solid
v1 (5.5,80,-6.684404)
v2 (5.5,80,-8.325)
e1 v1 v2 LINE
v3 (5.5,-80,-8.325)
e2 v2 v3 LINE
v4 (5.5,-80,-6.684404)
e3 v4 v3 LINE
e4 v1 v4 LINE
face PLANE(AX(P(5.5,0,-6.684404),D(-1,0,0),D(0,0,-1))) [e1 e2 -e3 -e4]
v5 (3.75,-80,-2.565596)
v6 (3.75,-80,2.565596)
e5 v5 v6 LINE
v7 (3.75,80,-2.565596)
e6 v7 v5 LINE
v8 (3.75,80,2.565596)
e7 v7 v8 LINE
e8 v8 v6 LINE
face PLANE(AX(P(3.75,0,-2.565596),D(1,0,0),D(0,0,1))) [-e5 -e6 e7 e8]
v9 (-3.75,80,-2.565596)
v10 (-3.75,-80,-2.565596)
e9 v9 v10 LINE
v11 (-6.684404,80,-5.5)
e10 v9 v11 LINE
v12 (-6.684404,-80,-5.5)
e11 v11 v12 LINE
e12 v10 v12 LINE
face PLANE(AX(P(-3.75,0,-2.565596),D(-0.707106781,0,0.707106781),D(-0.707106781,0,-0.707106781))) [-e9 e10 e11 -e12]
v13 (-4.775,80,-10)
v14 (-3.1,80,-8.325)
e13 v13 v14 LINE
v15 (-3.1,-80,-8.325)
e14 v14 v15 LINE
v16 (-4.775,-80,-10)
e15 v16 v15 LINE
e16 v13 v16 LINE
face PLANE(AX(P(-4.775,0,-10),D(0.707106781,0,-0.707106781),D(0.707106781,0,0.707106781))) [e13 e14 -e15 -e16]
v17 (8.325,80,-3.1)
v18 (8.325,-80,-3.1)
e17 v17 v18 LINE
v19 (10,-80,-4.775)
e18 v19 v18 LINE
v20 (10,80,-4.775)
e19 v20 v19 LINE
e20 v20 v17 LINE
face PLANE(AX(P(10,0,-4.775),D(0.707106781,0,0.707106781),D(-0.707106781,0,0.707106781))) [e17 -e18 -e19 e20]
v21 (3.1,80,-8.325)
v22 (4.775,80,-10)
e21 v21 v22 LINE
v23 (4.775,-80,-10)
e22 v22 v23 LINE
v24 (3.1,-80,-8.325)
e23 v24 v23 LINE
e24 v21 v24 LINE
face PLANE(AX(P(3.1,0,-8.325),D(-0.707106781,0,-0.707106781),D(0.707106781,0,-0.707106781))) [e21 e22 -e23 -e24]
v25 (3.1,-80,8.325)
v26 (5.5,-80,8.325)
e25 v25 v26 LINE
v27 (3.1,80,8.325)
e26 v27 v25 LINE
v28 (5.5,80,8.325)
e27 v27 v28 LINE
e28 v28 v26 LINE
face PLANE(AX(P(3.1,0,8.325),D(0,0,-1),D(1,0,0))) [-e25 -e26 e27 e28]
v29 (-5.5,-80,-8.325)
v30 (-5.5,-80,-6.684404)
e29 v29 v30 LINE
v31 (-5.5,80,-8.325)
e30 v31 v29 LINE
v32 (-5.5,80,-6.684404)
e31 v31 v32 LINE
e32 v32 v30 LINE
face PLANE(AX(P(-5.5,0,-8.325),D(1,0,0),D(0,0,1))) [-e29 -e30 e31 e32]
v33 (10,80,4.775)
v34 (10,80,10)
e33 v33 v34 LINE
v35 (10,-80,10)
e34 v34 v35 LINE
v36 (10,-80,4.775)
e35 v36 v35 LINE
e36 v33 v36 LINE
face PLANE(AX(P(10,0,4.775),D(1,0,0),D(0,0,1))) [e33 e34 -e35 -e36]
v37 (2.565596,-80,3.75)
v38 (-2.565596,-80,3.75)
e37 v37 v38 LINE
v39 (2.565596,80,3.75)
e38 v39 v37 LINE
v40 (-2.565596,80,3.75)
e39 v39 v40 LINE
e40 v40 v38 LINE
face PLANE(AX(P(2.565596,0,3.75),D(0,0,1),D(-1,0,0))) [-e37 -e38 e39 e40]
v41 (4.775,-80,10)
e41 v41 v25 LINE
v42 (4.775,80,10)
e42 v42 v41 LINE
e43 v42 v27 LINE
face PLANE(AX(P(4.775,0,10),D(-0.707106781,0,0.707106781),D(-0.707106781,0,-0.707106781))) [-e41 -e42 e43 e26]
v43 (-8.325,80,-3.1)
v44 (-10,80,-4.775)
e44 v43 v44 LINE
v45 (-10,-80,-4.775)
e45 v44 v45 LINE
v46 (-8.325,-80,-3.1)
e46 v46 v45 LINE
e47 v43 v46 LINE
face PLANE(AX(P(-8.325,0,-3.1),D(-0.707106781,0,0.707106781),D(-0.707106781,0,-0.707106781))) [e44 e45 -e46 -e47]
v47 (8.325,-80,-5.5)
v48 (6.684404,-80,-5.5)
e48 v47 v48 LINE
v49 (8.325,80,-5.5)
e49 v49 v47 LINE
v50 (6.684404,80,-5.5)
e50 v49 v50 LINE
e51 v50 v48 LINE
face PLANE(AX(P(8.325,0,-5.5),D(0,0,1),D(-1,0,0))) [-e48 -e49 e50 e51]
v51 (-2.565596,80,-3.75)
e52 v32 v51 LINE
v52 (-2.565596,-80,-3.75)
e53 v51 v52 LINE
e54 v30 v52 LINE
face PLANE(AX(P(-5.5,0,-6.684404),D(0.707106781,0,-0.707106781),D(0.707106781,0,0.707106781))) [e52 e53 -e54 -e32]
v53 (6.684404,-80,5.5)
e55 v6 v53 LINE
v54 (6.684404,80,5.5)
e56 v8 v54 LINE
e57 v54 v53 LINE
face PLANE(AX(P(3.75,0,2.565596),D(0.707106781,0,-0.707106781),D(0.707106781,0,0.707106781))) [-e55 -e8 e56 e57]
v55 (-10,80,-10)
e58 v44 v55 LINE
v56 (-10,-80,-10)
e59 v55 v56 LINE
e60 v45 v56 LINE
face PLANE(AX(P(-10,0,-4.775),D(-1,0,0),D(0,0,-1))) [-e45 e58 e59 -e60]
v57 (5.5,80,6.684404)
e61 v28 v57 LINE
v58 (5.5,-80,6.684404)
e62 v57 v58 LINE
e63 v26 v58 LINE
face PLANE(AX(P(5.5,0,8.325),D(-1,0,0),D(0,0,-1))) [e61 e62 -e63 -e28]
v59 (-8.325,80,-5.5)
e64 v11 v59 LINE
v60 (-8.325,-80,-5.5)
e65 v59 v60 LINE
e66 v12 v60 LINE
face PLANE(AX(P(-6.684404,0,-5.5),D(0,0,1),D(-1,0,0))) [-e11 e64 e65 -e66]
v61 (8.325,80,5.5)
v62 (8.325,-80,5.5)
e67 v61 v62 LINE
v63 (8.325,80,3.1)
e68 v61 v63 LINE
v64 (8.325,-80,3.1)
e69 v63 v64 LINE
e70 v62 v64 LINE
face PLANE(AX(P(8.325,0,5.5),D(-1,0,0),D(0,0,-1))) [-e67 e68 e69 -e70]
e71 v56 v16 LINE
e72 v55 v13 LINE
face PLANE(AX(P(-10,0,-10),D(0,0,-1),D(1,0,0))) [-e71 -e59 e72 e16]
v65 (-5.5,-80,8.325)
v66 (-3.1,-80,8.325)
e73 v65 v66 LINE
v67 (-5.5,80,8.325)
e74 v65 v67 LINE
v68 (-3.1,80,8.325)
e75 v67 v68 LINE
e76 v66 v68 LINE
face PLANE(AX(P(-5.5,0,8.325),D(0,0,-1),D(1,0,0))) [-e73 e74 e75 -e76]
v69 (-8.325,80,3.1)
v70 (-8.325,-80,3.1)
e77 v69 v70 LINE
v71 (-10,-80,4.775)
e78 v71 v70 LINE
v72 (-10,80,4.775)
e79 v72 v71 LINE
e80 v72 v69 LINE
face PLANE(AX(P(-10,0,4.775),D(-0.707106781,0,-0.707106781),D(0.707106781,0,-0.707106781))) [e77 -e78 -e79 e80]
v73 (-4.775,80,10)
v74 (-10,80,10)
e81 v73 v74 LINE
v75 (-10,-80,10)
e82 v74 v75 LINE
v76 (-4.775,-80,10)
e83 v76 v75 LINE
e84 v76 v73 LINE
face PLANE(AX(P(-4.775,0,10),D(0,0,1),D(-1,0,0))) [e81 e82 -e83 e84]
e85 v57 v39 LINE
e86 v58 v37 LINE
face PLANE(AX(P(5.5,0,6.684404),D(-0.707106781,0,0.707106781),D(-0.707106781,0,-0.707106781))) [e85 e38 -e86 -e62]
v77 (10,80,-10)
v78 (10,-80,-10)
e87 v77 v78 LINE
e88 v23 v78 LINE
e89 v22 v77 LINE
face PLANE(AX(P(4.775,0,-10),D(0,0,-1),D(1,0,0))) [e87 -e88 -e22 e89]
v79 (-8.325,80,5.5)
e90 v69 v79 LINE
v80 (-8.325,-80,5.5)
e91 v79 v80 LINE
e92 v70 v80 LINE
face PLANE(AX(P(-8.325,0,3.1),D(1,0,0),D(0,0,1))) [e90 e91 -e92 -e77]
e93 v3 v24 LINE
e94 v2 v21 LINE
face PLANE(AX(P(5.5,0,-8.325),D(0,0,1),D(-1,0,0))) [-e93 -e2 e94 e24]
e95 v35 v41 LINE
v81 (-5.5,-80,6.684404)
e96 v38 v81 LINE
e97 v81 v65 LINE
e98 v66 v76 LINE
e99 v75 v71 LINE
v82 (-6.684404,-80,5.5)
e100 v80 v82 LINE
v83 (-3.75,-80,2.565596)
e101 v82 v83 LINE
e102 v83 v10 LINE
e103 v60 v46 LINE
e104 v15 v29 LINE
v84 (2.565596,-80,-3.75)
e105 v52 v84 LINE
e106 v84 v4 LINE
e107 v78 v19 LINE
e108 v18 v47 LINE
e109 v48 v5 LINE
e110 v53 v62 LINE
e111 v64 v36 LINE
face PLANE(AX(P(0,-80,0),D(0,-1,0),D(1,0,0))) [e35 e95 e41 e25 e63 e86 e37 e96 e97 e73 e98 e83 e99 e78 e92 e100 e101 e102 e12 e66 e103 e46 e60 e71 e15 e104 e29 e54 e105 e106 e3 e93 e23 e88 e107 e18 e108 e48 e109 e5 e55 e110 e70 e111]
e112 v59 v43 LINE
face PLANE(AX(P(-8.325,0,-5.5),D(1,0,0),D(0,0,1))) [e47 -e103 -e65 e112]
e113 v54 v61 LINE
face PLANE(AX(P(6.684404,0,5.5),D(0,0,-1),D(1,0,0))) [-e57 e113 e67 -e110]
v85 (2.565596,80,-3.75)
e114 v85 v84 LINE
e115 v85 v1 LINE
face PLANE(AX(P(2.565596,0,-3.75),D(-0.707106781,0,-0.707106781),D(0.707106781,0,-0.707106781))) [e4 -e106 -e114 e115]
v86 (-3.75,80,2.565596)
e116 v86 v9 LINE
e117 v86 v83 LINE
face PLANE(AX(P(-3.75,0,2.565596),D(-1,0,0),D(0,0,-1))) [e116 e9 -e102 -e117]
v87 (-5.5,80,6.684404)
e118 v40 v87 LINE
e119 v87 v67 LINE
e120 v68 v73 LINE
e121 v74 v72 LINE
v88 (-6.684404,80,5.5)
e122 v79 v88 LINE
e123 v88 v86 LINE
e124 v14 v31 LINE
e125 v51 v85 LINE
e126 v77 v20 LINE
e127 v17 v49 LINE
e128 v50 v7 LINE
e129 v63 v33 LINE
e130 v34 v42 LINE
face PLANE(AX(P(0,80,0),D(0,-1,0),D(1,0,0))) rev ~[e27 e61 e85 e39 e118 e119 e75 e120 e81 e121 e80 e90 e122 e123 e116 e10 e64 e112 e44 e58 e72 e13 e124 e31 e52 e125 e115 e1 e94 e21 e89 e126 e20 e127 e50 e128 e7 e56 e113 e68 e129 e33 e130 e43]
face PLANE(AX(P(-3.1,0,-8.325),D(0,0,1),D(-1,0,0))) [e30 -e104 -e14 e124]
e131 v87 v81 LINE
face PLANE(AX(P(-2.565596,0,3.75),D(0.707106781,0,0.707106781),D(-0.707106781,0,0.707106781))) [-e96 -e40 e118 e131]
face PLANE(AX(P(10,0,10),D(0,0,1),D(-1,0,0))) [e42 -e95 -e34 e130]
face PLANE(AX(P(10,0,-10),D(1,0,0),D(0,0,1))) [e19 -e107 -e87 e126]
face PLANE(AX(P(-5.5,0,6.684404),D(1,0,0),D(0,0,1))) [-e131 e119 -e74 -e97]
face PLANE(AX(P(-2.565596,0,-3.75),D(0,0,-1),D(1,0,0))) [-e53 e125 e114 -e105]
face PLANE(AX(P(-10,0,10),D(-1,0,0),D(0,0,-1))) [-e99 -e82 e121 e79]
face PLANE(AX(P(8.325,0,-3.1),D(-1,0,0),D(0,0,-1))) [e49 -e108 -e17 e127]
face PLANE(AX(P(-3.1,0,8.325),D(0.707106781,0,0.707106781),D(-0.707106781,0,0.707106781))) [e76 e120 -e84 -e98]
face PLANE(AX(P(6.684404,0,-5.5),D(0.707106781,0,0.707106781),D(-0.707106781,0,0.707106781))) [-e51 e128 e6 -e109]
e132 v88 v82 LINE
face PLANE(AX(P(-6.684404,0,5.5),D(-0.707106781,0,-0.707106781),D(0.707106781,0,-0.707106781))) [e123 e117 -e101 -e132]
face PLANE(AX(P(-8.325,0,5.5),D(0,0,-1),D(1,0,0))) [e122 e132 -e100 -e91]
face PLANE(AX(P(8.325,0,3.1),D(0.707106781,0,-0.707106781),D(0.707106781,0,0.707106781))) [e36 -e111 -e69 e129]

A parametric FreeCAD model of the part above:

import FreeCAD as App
import Part
import Sketcher
from FreeCAD import Vector
Q = App.Units.Quantity

doc = App.newDocument("Part")
body = doc.addObject("PartDesign::Body", "Body")

sketch1 = doc.addObject("Sketcher::SketchObject", "Sketch")
body.addObject(sketch1)
sketch1.AttachmentSupport = (doc.XZ_Plane, [""])
sketch1.MapMode = "FlatFace"
sketch1.addGeometry(Part.LineSegment(Vector(-4.8, 10, 0), Vector(-10, 10, 0)), False)
sketch1.addGeometry(Part.LineSegment(Vector(-10, 10, 0), Vector(-10, 4.8, 0)), False)
sketch1.addGeometry(Part.LineSegment(Vector(-10, 4.8, 0), Vector(-8.3, 3.1, 0)), False)
sketch1.addGeometry(Part.LineSegment(Vector(-8.3, 3.1, 0), Vector(-8.3, 5.5, 0)), False)
sketch1.addGeometry(Part.LineSegment(Vector(-8.3, 5.5, 0), Vector(-6.7, 5.5, 0)), False)
sketch1.addGeometry(Part.LineSegment(Vector(-6.7, 5.5, 0), Vector(-3.8, 2.6, 0)), False)
sketch1.addGeometry(Part.LineSegment(Vector(-3.8, 2.6, 0), Vector(-3.8, -2.6, 0)), False)
sketch1.addGeometry(Part.LineSegment(Vector(-3.8, -2.6, 0), Vector(-6.7, -5.5, 0)), False)
sketch1.addGeometry(Part.LineSegment(Vector(-6.7, -5.5, 0), Vector(-8.3, -5.5, 0)), False)
sketch1.addGeometry(Part.LineSegment(Vector(-8.3, -5.5, 0), Vector(-8.3, -3.1, 0)), False)
sketch1.addGeometry(Part.LineSegment(Vector(-8.3, -3.1, 0), Vector(-10, -4.8, 0)), False)
sketch1.addGeometry(Part.LineSegment(Vector(-10, -4.8, 0), Vector(-10, -10, 0)), False)
sketch1.addGeometry(Part.LineSegment(Vector(-10, -10, 0), Vector(-4.8, -10, 0)), False)
sketch1.addGeometry(Part.LineSegment(Vector(-4.8, -10, 0), Vector(-3.1, -8.3, 0)), False)
sketch1.addGeometry(Part.LineSegment(Vector(-3.1, -8.3, 0), Vector(-5.5, -8.3, 0)), False)
sketch1.addGeometry(Part.LineSegment(Vector(-5.5, -8.3, 0), Vector(-5.5, -6.7, 0)), False)
sketch1.addGeometry(Part.LineSegment(Vector(-5.5, -6.7, 0), Vector(-2.6, -3.8, 0)), False)
sketch1.addGeometry(Part.LineSegment(Vector(-2.6, -3.8, 0), Vector(2.6, -3.8, 0)), False)
sketch1.addGeometry(Part.LineSegment(Vector(2.6, -3.8, 0), Vector(5.5, -6.7, 0)), False)
sketch1.addGeometry(Part.LineSegment(Vector(5.5, -6.7, 0), Vector(5.5, -8.3, 0)), False)
sketch1.addGeometry(Part.LineSegment(Vector(5.5, -8.3, 0), Vector(3.1, -8.3, 0)), False)
sketch1.addGeometry(Part.LineSegment(Vector(3.1, -8.3, 0), Vector(4.8, -10, 0)), False)
sketch1.addGeometry(Part.LineSegment(Vector(4.8, -10, 0), Vector(10, -10, 0)), False)
sketch1.addGeometry(Part.LineSegment(Vector(10, -10, 0), Vector(10, -4.8, 0)), False)
sketch1.addGeometry(Part.LineSegment(Vector(10, -4.8, 0), Vector(8.3, -3.1, 0)), False)
sketch1.addGeometry(Part.LineSegment(Vector(8.3, -3.1, 0), Vector(8.3, -5.5, 0)), False)
sketch1.addGeometry(Part.LineSegment(Vector(8.3, -5.5, 0), Vector(6.7, -5.5, 0)), False)
sketch1.addGeometry(Part.LineSegment(Vector(6.7, -5.5, 0), Vector(3.8, -2.6, 0)), False)
sketch1.addGeometry(Part.LineSegment(Vector(3.8, -2.6, 0), Vector(3.8, 2.6, 0)), False)
sketch1.addGeometry(Part.LineSegment(Vector(3.8, 2.6, 0), Vector(6.7, 5.5, 0)), False)
sketch1.addGeometry(Part.LineSegment(Vector(6.7, 5.5, 0), Vector(8.3, 5.5, 0)), False)
sketch1.addGeometry(Part.LineSegment(Vector(8.3, 5.5, 0), Vector(8.3, 3.1, 0)), False)
sketch1.addGeometry(Part.LineSegment(Vector(8.3, 3.1, 0), Vector(10, 4.8, 0)), False)
sketch1.addGeometry(Part.LineSegment(Vector(10, 4.8, 0), Vector(10, 10, 0)), False)
sketch1.addGeometry(Part.LineSegment(Vector(10, 10, 0), Vector(4.8, 10, 0)), False)
sketch1.addGeometry(Part.LineSegment(Vector(4.8, 10, 0), Vector(3.1, 8.3, 0)), False)
sketch1.addGeometry(Part.LineSegment(Vector(3.1, 8.3, 0), Vector(5.5, 8.3, 0)), False)
sketch1.addGeometry(Part.LineSegment(Vector(5.5, 8.3, 0), Vector(5.5, 6.7, 0)), False)
sketch1.addGeometry(Part.LineSegment(Vector(5.5, 6.7, 0), Vector(2.6, 3.8, 0)), False)
sketch1.addGeometry(Part.LineSegment(Vector(2.6, 3.8, 0), Vector(-2.6, 3.8, 0)), False)
sketch1.addGeometry(Part.LineSegment(Vector(-2.6, 3.8, 0), Vector(-5.5, 6.7, 0)), False)
sketch1.addGeometry(Part.LineSegment(Vector(-5.5, 6.7, 0), Vector(-5.5, 8.3, 0)), False)
sketch1.addGeometry(Part.LineSegment(Vector(-5.5, 8.3, 0), Vector(-3.1, 8.3, 0)), False)
sketch1.addGeometry(Part.LineSegment(Vector(-3.1, 8.3, 0), Vector(-4.8, 10, 0)), False)
sketch1.addConstraint(Sketcher.Constraint("Coincident", 0, 2, 1, 1))
sketch1.addConstraint(Sketcher.Constraint("Coincident", 1, 2, 2, 1))
sketch1.addConstraint(Sketcher.Constraint("Coincident", 2, 2, 3, 1))
sketch1.addConstraint(Sketcher.Constraint("Coincident", 3, 2, 4, 1))
sketch1.addConstraint(Sketcher.Constraint("Coincident", 4, 2, 5, 1))
sketch1.addConstraint(Sketcher.Constraint("Coincident", 5, 2, 6, 1))
sketch1.addConstraint(Sketcher.Constraint("Coincident", 6, 2, 7, 1))
sketch1.addConstraint(Sketcher.Constraint("Coincident", 7, 2, 8, 1))
sketch1.addConstraint(Sketcher.Constraint("Coincident", 8, 2, 9, 1))
sketch1.addConstraint(Sketcher.Constraint("Coincident", 9, 2, 10, 1))
sketch1.addConstraint(Sketcher.Constraint("Coincident", 10, 2, 11, 1))
sketch1.addConstraint(Sketcher.Constraint("Coincident", 11, 2, 12, 1))
sketch1.addConstraint(Sketcher.Constraint("Coincident", 12, 2, 13, 1))
sketch1.addConstraint(Sketcher.Constraint("Coincident", 13, 2, 14, 1))
sketch1.addConstraint(Sketcher.Constraint("Coincident", 14, 2, 15, 1))
sketch1.addConstraint(Sketcher.Constraint("Coincident", 15, 2, 16, 1))
sketch1.addConstraint(Sketcher.Constraint("Coincident", 16, 2, 17, 1))
sketch1.addConstraint(Sketcher.Constraint("Coincident", 17, 2, 18, 1))
sketch1.addConstraint(Sketcher.Constraint("Coincident", 18, 2, 19, 1))
sketch1.addConstraint(Sketcher.Constraint("Coincident", 19, 2, 20, 1))
sketch1.addConstraint(Sketcher.Constraint("Coincident", 20, 2, 21, 1))
sketch1.addConstraint(Sketcher.Constraint("Coincident", 21, 2, 22, 1))
sketch1.addConstraint(Sketcher.Constraint("Coincident", 22, 2, 23, 1))
sketch1.addConstraint(Sketcher.Constraint("Coincident", 23, 2, 24, 1))
sketch1.addConstraint(Sketcher.Constraint("Coincident", 24, 2, 25, 1))
sketch1.addConstraint(Sketcher.Constraint("Coincident", 25, 2, 26, 1))
sketch1.addConstraint(Sketcher.Constraint("Coincident", 26, 2, 27, 1))
sketch1.addConstraint(Sketcher.Constraint("Coincident", 27, 2, 28, 1))
sketch1.addConstraint(Sketcher.Constraint("Coincident", 28, 2, 29, 1))
sketch1.addConstraint(Sketcher.Constraint("Coincident", 29, 2, 30, 1))
sketch1.addConstraint(Sketcher.Constraint("Coincident", 30, 2, 31, 1))
sketch1.addConstraint(Sketcher.Constraint("Coincident", 31, 2, 32, 1))
sketch1.addConstraint(Sketcher.Constraint("Coincident", 32, 2, 33, 1))
sketch1.addConstraint(Sketcher.Constraint("Coincident", 33, 2, 34, 1))
sketch1.addConstraint(Sketcher.Constraint("Coincident", 34, 2, 35, 1))
sketch1.addConstraint(Sketcher.Constraint("Coincident", 35, 2, 36, 1))
sketch1.addConstraint(Sketcher.Constraint("Coincident", 36, 2, 37, 1))
sketch1.addConstraint(Sketcher.Constraint("Coincident", 37, 2, 38, 1))
sketch1.addConstraint(Sketcher.Constraint("Coincident", 38, 2, 39, 1))
sketch1.addConstraint(Sketcher.Constraint("Coincident", 39, 2, 40, 1))
sketch1.addConstraint(Sketcher.Constraint("Coincident", 40, 2, 41, 1))
sketch1.addConstraint(Sketcher.Constraint("Coincident", 41, 2, 42, 1))
sketch1.addConstraint(Sketcher.Constraint("Coincident", 42, 2, 43, 1))
sketch1.addConstraint(Sketcher.Constraint("Coincident", 43, 2, 0, 1))
sketch1.addConstraint(Sketcher.Constraint("Horizontal", 0))
sketch1.addConstraint(Sketcher.Constraint("Vertical", 1))
sketch1.addConstraint(Sketcher.Constraint("Vertical", 3))
sketch1.addConstraint(Sketcher.Constraint("Horizontal", 4))
sketch1.addConstraint(Sketcher.Constraint("Vertical", 6))
sketch1.addConstraint(Sketcher.Constraint("Horizontal", 8))
sketch1.addConstraint(Sketcher.Constraint("Vertical", 9))
sketch1.addConstraint(Sketcher.Constraint("Vertical", 11))
sketch1.addConstraint(Sketcher.Constraint("Horizontal", 12))
sketch1.addConstraint(Sketcher.Constraint("Horizontal", 14))
sketch1.addConstraint(Sketcher.Constraint("Vertical", 15))
sketch1.addConstraint(Sketcher.Constraint("Horizontal", 17))
sketch1.addConstraint(Sketcher.Constraint("Vertical", 19))
sketch1.addConstraint(Sketcher.Constraint("Horizontal", 20))
sketch1.addConstraint(Sketcher.Constraint("Horizontal", 22))
sketch1.addConstraint(Sketcher.Constraint("Vertical", 23))
sketch1.addConstraint(Sketcher.Constraint("Vertical", 25))
sketch1.addConstraint(Sketcher.Constraint("Horizontal", 26))
sketch1.addConstraint(Sketcher.Constraint("Vertical", 28))
sketch1.addConstraint(Sketcher.Constraint("Horizontal", 30))
sketch1.addConstraint(Sketcher.Constraint("Vertical", 31))
sketch1.addConstraint(Sketcher.Constraint("Vertical", 33))
sketch1.addConstraint(Sketcher.Constraint("Horizontal", 34))
sketch1.addConstraint(Sketcher.Constraint("Horizontal", 36))
sketch1.addConstraint(Sketcher.Constraint("Vertical", 37))
sketch1.addConstraint(Sketcher.Constraint("Horizontal", 39))
sketch1.addConstraint(Sketcher.Constraint("Vertical", 41))
sketch1.addConstraint(Sketcher.Constraint("Horizontal", 42))
sketch1.addConstraint(Sketcher.Constraint("Symmetric", 0, 2, 22, 2, -1, 1))
sketch1.addConstraint(Sketcher.Constraint("Symmetric", 2, 2, 24, 2, -1, 1))
sketch1.addConstraint(Sketcher.Constraint("Symmetric", 4, 2, 26, 2, -1, 1))
sketch1.addConstraint(Sketcher.Constraint("Symmetric", 5, 2, 27, 2, -1, 1))
sketch1.addConstraint(Sketcher.Constraint("Symmetric", 7, 2, 29, 2, -1, 1))
sketch1.addConstraint(Sketcher.Constraint("Symmetric", 9, 2, 31, 2, -1, 1))
sketch1.addConstraint(Sketcher.Constraint("Symmetric", 10, 2, 32, 2, -1, 1))
sketch1.addConstraint(Sketcher.Constraint("Symmetric", 12, 2, 34, 2, -1, 1))
sketch1.addConstraint(Sketcher.Constraint("Symmetric", 13, 2, 35, 2, -1, 1))
sketch1.addConstraint(Sketcher.Constraint("Symmetric", 15, 2, 37, 2, -1, 1))
sketch1.addConstraint(Sketcher.Constraint("Symmetric", 16, 2, 38, 2, -1, 1))
sketch1.addConstraint(Sketcher.Constraint("Symmetric", 18, 2, 40, 2, -1, 1))
sketch1.addConstraint(Sketcher.Constraint("Symmetric", 20, 2, 42, 2, -1, 1))
sketch1.addConstraint(Sketcher.Constraint("Symmetric", 15, 2, 18, 2, -2))
sketch1.addConstraint(Sketcher.Constraint("Symmetric", 13, 2, 20, 2, -2))
sketch1.addConstraint(Sketcher.Constraint("Symmetric", 12, 2, 21, 2, -2))
sketch1.addConstraint(Sketcher.Constraint("Symmetric", 10, 2, 23, 2, -2))
sketch1.addConstraint(Sketcher.Constraint("Symmetric", 9, 2, 24, 2, -2))
sketch1.addConstraint(Sketcher.Constraint("Symmetric", 7, 2, 26, 2, -2))
sketch1.addConstraint(Sketcher.Constraint("Parallel", 2, 5))
sketch1.addConstraint(Sketcher.Constraint("Perpendicular", 5, 7))
sketch1.addConstraint(Sketcher.Constraint("Parallel", 7, 10))
sketch1.addConstraint(Sketcher.Constraint("Parallel", 10, 13))
sketch1.addConstraint(Sketcher.Constraint("Parallel", 13, 16))
sketch1.addConstraint(Sketcher.Constraint("Perpendicular", 16, 18))
sketch1.addConstraint(Sketcher.Constraint("Parallel", 18, 21))
sketch1.addConstraint(Sketcher.Constraint("Perpendicular", 27, 29))
sketch1.addConstraint(Sketcher.Constraint("Perpendicular", 38, 40))
sketch1.addConstraint(Sketcher.Constraint("Parallel", 40, 43))
sketch1.addConstraint(Sketcher.Constraint("Equal", 34, 1))
sketch1.addConstraint(Sketcher.Constraint("Equal", 42, 3))
sketch1.addConstraint(Sketcher.Constraint("Equal", 39, 6))
sketch1.addConstraint(Sketcher.Constraint("Equal", 30, 15))
sketch1.addConstraint(Sketcher.Constraint("Equal", 10, 13))
sketch1.addConstraint(Sketcher.Constraint("Equal", 7, 16))
sketch1.addConstraint(Sketcher.Constraint("DistanceX", 14, 2, 14, 1, Q("2.4 mm")))
sketch1.addConstraint(Sketcher.Constraint("DistanceX", 0, 2, -1, 1, Q("10 mm")))
sketch1.addConstraint(Sketcher.Constraint("DistanceY", 7, 2, 4, 2, Q("11 mm")))
sketch1.addConstraint(Sketcher.Constraint("DistanceX", 5, 2, 28, 2, Q("7.5 mm")))
sketch1.addConstraint(Sketcher.Constraint("DistanceX", 0, 2, 0, 1, Q("5.225 mm")))
sketch1.addConstraint(Sketcher.Constraint("DistanceX", 4, 1, 4, 2, Q("1.640596 mm")))
pad1 = doc.addObject("PartDesign::Pad", "Pad")
body.addObject(pad1)
pad1.Profile = sketch1
pad1.Length = 160
pad1.Midplane = True

doc.recompute()
